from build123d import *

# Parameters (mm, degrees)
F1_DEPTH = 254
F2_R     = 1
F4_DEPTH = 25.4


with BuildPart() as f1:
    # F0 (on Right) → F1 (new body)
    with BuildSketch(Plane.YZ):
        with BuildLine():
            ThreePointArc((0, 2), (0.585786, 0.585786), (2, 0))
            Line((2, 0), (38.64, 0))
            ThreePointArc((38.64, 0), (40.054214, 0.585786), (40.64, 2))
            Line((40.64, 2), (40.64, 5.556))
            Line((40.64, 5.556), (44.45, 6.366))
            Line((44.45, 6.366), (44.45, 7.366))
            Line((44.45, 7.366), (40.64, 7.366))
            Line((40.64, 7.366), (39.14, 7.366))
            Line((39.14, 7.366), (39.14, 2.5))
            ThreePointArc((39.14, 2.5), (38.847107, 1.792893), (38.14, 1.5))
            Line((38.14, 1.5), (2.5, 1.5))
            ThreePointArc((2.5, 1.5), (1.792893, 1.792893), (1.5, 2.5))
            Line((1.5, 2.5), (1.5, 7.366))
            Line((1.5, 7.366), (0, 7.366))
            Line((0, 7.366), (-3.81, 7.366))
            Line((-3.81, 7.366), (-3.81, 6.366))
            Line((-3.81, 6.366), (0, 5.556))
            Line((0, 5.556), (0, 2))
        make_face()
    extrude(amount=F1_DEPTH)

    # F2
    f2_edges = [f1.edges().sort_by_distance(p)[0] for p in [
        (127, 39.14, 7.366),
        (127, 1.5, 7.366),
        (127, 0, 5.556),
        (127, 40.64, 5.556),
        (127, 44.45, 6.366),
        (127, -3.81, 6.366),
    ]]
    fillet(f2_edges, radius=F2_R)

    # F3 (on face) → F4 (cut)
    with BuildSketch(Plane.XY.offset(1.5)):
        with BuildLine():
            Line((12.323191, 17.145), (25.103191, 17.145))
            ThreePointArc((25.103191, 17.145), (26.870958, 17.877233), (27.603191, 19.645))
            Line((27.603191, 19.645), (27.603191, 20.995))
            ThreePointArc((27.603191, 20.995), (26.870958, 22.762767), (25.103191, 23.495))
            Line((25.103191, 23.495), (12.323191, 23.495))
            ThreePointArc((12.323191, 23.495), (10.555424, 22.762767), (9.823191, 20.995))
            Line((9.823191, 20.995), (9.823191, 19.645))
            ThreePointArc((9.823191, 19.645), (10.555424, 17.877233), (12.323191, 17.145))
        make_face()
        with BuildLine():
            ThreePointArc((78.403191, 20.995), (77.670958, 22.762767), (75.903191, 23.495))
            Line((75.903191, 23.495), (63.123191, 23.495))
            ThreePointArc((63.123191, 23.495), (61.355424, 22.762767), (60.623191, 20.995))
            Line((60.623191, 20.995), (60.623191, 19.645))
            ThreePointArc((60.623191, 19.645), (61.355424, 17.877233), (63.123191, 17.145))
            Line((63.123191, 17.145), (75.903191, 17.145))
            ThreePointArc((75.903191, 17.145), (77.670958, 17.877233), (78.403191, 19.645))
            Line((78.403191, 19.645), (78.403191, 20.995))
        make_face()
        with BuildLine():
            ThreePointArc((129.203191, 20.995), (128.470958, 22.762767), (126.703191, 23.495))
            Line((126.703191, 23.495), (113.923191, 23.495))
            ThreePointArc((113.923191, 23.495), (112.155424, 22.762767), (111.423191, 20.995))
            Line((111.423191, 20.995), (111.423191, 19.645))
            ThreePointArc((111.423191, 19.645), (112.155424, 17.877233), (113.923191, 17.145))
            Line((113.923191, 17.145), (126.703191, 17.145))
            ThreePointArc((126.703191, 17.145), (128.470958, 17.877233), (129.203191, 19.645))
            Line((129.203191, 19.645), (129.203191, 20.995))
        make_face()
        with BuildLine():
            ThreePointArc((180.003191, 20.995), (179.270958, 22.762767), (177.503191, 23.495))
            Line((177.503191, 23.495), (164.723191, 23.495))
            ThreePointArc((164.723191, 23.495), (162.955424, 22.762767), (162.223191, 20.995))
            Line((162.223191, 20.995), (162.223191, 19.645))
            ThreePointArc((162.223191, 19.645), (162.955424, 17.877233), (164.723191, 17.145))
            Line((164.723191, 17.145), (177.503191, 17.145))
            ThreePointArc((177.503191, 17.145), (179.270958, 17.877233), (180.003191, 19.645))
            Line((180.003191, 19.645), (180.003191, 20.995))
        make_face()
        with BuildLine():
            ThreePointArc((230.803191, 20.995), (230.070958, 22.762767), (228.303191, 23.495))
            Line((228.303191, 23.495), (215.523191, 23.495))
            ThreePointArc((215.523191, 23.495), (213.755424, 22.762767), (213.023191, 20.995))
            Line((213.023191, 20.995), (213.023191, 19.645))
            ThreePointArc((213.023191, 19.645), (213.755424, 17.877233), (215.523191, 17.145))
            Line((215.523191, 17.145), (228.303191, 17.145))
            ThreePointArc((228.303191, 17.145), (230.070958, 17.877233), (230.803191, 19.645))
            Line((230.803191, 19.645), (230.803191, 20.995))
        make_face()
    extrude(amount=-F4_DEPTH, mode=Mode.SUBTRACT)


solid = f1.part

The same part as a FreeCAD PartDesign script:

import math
import FreeCAD as App
import Part
import Sketcher
from FreeCAD import Vector


def edges_at(feature, points):
    """Names of the edges that pass closest to the given points."""
    edges = feature.Shape.Edges
    near = lambda p: min(range(len(edges)), key=lambda i: edges[i].distToShape(Part.Vertex(*p))[0])
    return sorted({f"Edge{near(p) + 1}" for p in points})

doc = App.newDocument("Part")
body = doc.addObject("PartDesign::Body", "Body")

# Sketch on YZ plane
sketch1 = doc.addObject("Sketcher::SketchObject", "Sketch")
body.addObject(sketch1)
sketch1.AttachmentSupport = (doc.YZ_Plane, [""])
sketch1.MapMode = "FlatFace"
sketch1.addGeometry(Part.ArcOfCircle(Part.Circle(Vector(2, 2, 0), Vector(0, 0, 1), 2), math.radians(180), math.radians(270)), False)
sketch1.addGeometry(Part.LineSegment(Vector(2, 0, 0), Vector(38.6, 0, 0)), False)
sketch1.addGeometry(Part.ArcOfCircle(Part.Circle(Vector(38.6, 2, 0), Vector(0, 0, 1), 2), math.radians(-90), math.radians(0)), False)
sketch1.addGeometry(Part.LineSegment(Vector(40.6, 2, 0), Vector(40.6, 5.6, 0)), False)
sketch1.addGeometry(Part.LineSegment(Vector(40.6, 5.6, 0), Vector(44.5, 6.4, 0)), False)
sketch1.addGeometry(Part.LineSegment(Vector(44.5, 6.4, 0), Vector(44.5, 7.4, 0)), False)
sketch1.addGeometry(Part.LineSegment(Vector(44.5, 7.4, 0), Vector(39.1, 7.4, 0)), False)
sketch1.addGeometry(Part.LineSegment(Vector(39.1, 7.4, 0), Vector(39.1, 2.5, 0)), False)
sketch1.addGeometry(Part.ArcOfCircle(Part.Circle(Vector(38.1, 2.5, 0), Vector(0, 0, 1), 1), math.radians(-90), math.radians(0)), False)
sketch1.addGeometry(Part.LineSegment(Vector(38.1, 1.5, 0), Vector(2.5, 1.5, 0)), False)
sketch1.addGeometry(Part.ArcOfCircle(Part.Circle(Vector(2.5, 2.5, 0), Vector(0, 0, 1), 1), math.radians(180), math.radians(270)), False)
sketch1.addGeometry(Part.LineSegment(Vector(1.5, 2.5, 0), Vector(1.5, 7.4, 0)), False)
sketch1.addGeometry(Part.LineSegment(Vector(1.5, 7.4, 0), Vector(-3.8, 7.4, 0)), False)
sketch1.addGeometry(Part.LineSegment(Vector(-3.8, 7.4, 0), Vector(-3.8, 6.4, 0)), False)
sketch1.addGeometry(Part.LineSegment(Vector(-3.8, 6.4, 0), Vector(0, 5.6, 0)), False)
sketch1.addGeometry(Part.LineSegment(Vector(0, 5.6, 0), Vector(0, 2, 0)), False)
sketch1.addConstraint(Sketcher.Constraint("Tangent", 0, 2, 1, 1))
sketch1.addConstraint(Sketcher.Constraint("Tangent", 1, 2, 2, 1))
sketch1.addConstraint(Sketcher.Constraint("Tangent", 2, 2, 3, 1))
sketch1.addConstraint(Sketcher.Constraint("Coincident", 3, 2, 4, 1))
sketch1.addConstraint(Sketcher.Constraint("Coincident", 4, 2, 5, 1))
sketch1.addConstraint(Sketcher.Constraint("Coincident", 5, 2, 6, 1))
sketch1.addConstraint(Sketcher.Constraint("Coincident", 6, 2, 7, 1))
sketch1.addConstraint(Sketcher.Constraint("Tangent", 7, 2, 8, 2))
sketch1.addConstraint(Sketcher.Constraint("Tangent", 8, 1, 9, 1))
sketch1.addConstraint(Sketcher.Constraint("Tangent", 9, 2, 10, 2))
sketch1.addConstraint(Sketcher.Constraint("Tangent", 10, 1, 11, 1))
sketch1.addConstraint(Sketcher.Constraint("Coincident", 11, 2, 12, 1))
sketch1.addConstraint(Sketcher.Constraint("Coincident", 12, 2, 13, 1))
sketch1.addConstraint(Sketcher.Constraint("Coincident", 13, 2, 14, 1))
sketch1.addConstraint(Sketcher.Constraint("Coincident", 14, 2, 15, 1))
sketch1.addConstraint(Sketcher.Constraint("Tangent", 15, 2, 0, 1))
sketch1.addConstraint(Sketcher.Constraint("Horizontal", 1))
sketch1.addConstraint(Sketcher.Constraint("Vertical", 3))
sketch1.addConstraint(Sketcher.Constraint("Vertical", 5))
sketch1.addConstraint(Sketcher.Constraint("Horizontal", 6))
sketch1.addConstraint(Sketcher.Constraint("Vertical", 7))
sketch1.addConstraint(Sketcher.Constraint("Horizontal", 9))
sketch1.addConstraint(Sketcher.Constraint("Vertical", 11))
sketch1.addConstraint(Sketcher.Constraint("Horizontal", 12))
sketch1.addConstraint(Sketcher.Constraint("Vertical", 13))
sketch1.addConstraint(Sketcher.Constraint("Vertical", 15))
sketch1.addConstraint(Sketcher.Constraint("Equal", 0, 2))
sketch1.addConstraint(Sketcher.Constraint("Equal", 8, 10))
sketch1.addConstraint(Sketcher.Constraint("PointOnObject", 0, 2, -1))
sketch1.addConstraint(Sketcher.Constraint("PointOnObject", 14, 2, -2))
sketch1.addConstraint(Sketcher.Constraint("Horizontal", 6, 2, 11, 2))
sketch1.addConstraint(Sketcher.Constraint("Horizontal", 4, 2, 13, 2))
sketch1.addConstraint(Sketcher.Constraint("Horizontal", 3, 2, 14, 2))
sketch1.addConstraint(Sketcher.Constraint("Equal", 6, 12))
sketch1.addConstraint(Sketcher.Constraint("Equal", 4, 14))
sketch1.addConstraint(Sketcher.Constraint("Radius", 0, 1.999999))
sketch1.addConstraint(Sketcher.Constraint("Radius", 8, 0.999999))
sketch1.addConstraint(Sketcher.Constraint("DistanceY", 5, 1, 5, 2, 1.0))
sketch1.addConstraint(Sketcher.Constraint("DistanceX", 1, 1, 1, 2, 36.64))
sketch1.addConstraint(Sketcher.Constraint("DistanceX", 6, 2, 6, 1, 5.31))
sketch1.addConstraint(Sketcher.Constraint("DistanceX", 9, 2, 9, 1, 35.64))
sketch1.addConstraint(Sketcher.Constraint("DistanceY", -1, 1, 8, 3, 2.499999))
sketch1.addConstraint(Sketcher.Constraint("DistanceY", 3, 1, 3, 2, 3.556))
sketch1.addConstraint(Sketcher.Constraint("DistanceY", 7, 2, 7, 1, 4.866))
pad1 = doc.addObject("PartDesign::Pad", "Pad")
body.addObject(pad1)
pad1.Profile = sketch1
pad1.Length = 254
doc.recompute()

fillet = doc.addObject("PartDesign::Fillet", "Fillet")
body.addObject(fillet)
fillet.Base = (pad1, edges_at(pad1, [
    (127, 39.14, 7.366),
    (127, 1.5, 7.366),
    (127, 0, 5.556),
    (127, 40.64, 5.556),
    (127, 44.45, 6.366),
    (127, -3.81, 6.366),
]))
fillet.Radius = 1

# Sketch on XY plane
sketch2 = doc.addObject("Sketcher::SketchObject", "Sketch001")
body.addObject(sketch2)
sketch2.AttachmentSupport = (doc.XY_Plane, [""])
sketch2.MapMode = "FlatFace"
sketch2.AttachmentOffset = App.Placement(Vector(0, 0, 1.5), App.Rotation())
sketch2.addGeometry(Part.LineSegment(Vector(12.3, 17.1, 0), Vector(25.1, 17.1, 0)), False)
sketch2.addGeometry(Part.ArcOfCircle(Part.Circle(Vector(25.1, 19.6, 0), Vector(0, 0, 1), 2.5), math.radians(-90), math.radians(0)), False)
sketch2.addGeometry(Part.LineSegment(Vector(27.6, 19.6, 0), Vector(27.6, 21, 0)), False)
sketch2.addGeometry(Part.ArcOfCircle(Part.Circle(Vector(25.1, 21, 0), Vector(0, 0, 1), 2.5), math.radians(0), math.radians(90)), False)
sketch2.addGeometry(Part.LineSegment(Vector(25.1, 23.5, 0), Vector(12.3, 23.5, 0)), False)
sketch2.addGeometry(Part.ArcOfCircle(Part.Circle(Vector(12.3, 21, 0), Vector(0, 0, 1), 2.5), math.radians(90), math.radians(180)), False)
sketch2.addGeometry(Part.LineSegment(Vector(9.8, 21, 0), Vector(9.8, 19.6, 0)), False)
sketch2.addGeometry(Part.ArcOfCircle(Part.Circle(Vector(12.3, 19.6, 0), Vector(0, 0, 1), 2.5), math.radians(180), math.radians(270)), False)
sketch2.addGeometry(Part.ArcOfCircle(Part.Circle(Vector(75.9, 21, 0), Vector(0, 0, 1), 2.5), math.radians(0), math.radians(90)), False)
sketch2.addGeometry(Part.LineSegment(Vector(75.9, 23.5, 0), Vector(63.1, 23.5, 0)), False)
sketch2.addGeometry(Part.ArcOfCircle(Part.Circle(Vector(63.1, 21, 0), Vector(0, 0, 1), 2.5), math.radians(90), math.radians(180)), False)
sketch2.addGeometry(Part.LineSegment(Vector(60.6, 21, 0), Vector(60.6, 19.6, 0)), False)
sketch2.addGeometry(Part.ArcOfCircle(Part.Circle(Vector(63.1, 19.6, 0), Vector(0, 0, 1), 2.5), math.radians(180), math.radians(270)), False)
sketch2.addGeometry(Part.LineSegment(Vector(63.1, 17.1, 0), Vector(75.9, 17.1, 0)), False)
sketch2.addGeometry(Part.ArcOfCircle(Part.Circle(Vector(75.9, 19.6, 0), Vector(0, 0, 1), 2.5), math.radians(-90), math.radians(0)), False)
sketch2.addGeometry(Part.LineSegment(Vector(78.4, 19.6, 0), Vector(78.4, 21, 0)), False)
sketch2.addGeometry(Part.ArcOfCircle(Part.Circle(Vector(126.7, 21, 0), Vector(0, 0, 1), 2.5), math.radians(0), math.radians(90)), False)
sketch2.addGeometry(Part.LineSegment(Vector(126.7, 23.5, 0), Vector(113.9, 23.5, 0)), False)
sketch2.addGeometry(Part.ArcOfCircle(Part.Circle(Vector(113.9, 21, 0), Vector(0, 0, 1), 2.5), math.radians(90), math.radians(180)), False)
sketch2.addGeometry(Part.LineSegment(Vector(111.4, 21, 0), Vector(111.4, 19.6, 0)), False)
sketch2.addGeometry(Part.ArcOfCircle(Part.Circle(Vector(113.9, 19.6, 0), Vector(0, 0, 1), 2.5), math.radians(180), math.radians(270)), False)
sketch2.addGeometry(Part.LineSegment(Vector(113.9, 17.1, 0), Vector(126.7, 17.1, 0)), False)
sketch2.addGeometry(Part.ArcOfCircle(Part.Circle(Vector(126.7, 19.6, 0), Vector(0, 0, 1), 2.5), math.radians(-90), math.radians(0)), False)
sketch2.addGeometry(Part.LineSegment(Vector(129.2, 19.6, 0), Vector(129.2, 21, 0)), False)
sketch2.addGeometry(Part.ArcOfCircle(Part.Circle(Vector(177.5, 21, 0), Vector(0, 0, 1), 2.5), math.radians(0), math.radians(90)), False)
sketch2.addGeometry(Part.LineSegment(Vector(177.5, 23.5, 0), Vector(164.7, 23.5, 0)), False)
sketch2.addGeometry(Part.ArcOfCircle(Part.Circle(Vector(164.7, 21, 0), Vector(0, 0, 1), 2.5), math.radians(90), math.radians(180)), False)
sketch2.addGeometry(Part.LineSegment(Vector(162.2, 21, 0), Vector(162.2, 19.6, 0)), False)
sketch2.addGeometry(Part.ArcOfCircle(Part.Circle(Vector(164.7, 19.6, 0), Vector(0, 0, 1), 2.5), math.radians(180), math.radians(270)), False)
sketch2.addGeometry(Part.LineSegment(Vector(164.7, 17.1, 0), Vector(177.5, 17.1, 0)), False)
sketch2.addGeometry(Part.ArcOfCircle(Part.Circle(Vector(177.5, 19.6, 0), Vector(0, 0, 1), 2.5), math.radians(-90), math.radians(0)), False)
sketch2.addGeometry(Part.LineSegment(Vector(180, 19.6, 0), Vector(180, 21, 0)), False)
sketch2.addGeometry(Part.ArcOfCircle(Part.Circle(Vector(228.3, 21, 0), Vector(0, 0, 1), 2.5), math.radians(0), math.radians(90)), False)
sketch2.addGeometry(Part.LineSegment(Vector(228.3, 23.5, 0), Vector(215.5, 23.5, 0)), False)
sketch2.addGeometry(Part.ArcOfCircle(Part.Circle(Vector(215.5, 21, 0), Vector(0, 0, 1), 2.5), math.radians(90), math.radians(180)), False)
sketch2.addGeometry(Part.LineSegment(Vector(213, 21, 0), Vector(213, 19.6, 0)), False)
sketch2.addGeometry(Part.ArcOfCircle(Part.Circle(Vector(215.5, 19.6, 0), Vector(0, 0, 1), 2.5), math.radians(180), math.radians(270)), False)
sketch2.addGeometry(Part.LineSegment(Vector(215.5, 17.1, 0), Vector(228.3, 17.1, 0)), False)
sketch2.addGeometry(Part.ArcOfCircle(Part.Circle(Vector(228.3, 19.6, 0), Vector(0, 0, 1), 2.5), math.radians(-90), math.radians(0)), False)
sketch2.addGeometry(Part.LineSegment(Vector(230.8, 19.6, 0), Vector(230.8, 21, 0)), False)
sketch2.addConstraint(Sketcher.Constraint("Tangent", 0, 2, 1, 1))
sketch2.addConstraint(Sketcher.Constraint("Tangent", 1, 2, 2, 1))
sketch2.addConstraint(Sketcher.Constraint("Tangent", 2, 2, 3, 1))
sketch2.addConstraint(Sketcher.Constraint("Tangent", 3, 2, 4, 1))
sketch2.addConstraint(Sketcher.Constraint("Tangent", 4, 2, 5, 1))
sketch2.addConstraint(Sketcher.Constraint("Tangent", 5, 2, 6, 1))
sketch2.addConstraint(Sketcher.Constraint("Tangent", 6, 2, 7, 1))
sketch2.addConstraint(Sketcher.Constraint("Tangent", 7, 2, 0, 1))
sketch2.addConstraint(Sketcher.Constraint("Tangent", 8, 2, 9, 1))
sketch2.addConstraint(Sketcher.Constraint("Tangent", 9, 2, 10, 1))
sketch2.addConstraint(Sketcher.Constraint("Tangent", 10, 2, 11, 1))
sketch2.addConstraint(Sketcher.Constraint("Tangent", 11, 2, 12, 1))
sketch2.addConstraint(Sketcher.Constraint("Tangent", 12, 2, 13, 1))
sketch2.addConstraint(Sketcher.Constraint("Tangent", 13, 2, 14, 1))
sketch2.addConstraint(Sketcher.Constraint("Tangent", 14, 2, 15, 1))
sketch2.addConstraint(Sketcher.Constraint("Tangent", 15, 2, 8, 1))
sketch2.addConstraint(Sketcher.Constraint("Tangent", 16, 2, 17, 1))
sketch2.addConstraint(Sketcher.Constraint("Tangent", 17, 2, 18, 1))
sketch2.addConstraint(Sketcher.Constraint("Tangent", 18, 2, 19, 1))
sketch2.addConstraint(Sketcher.Constraint("Tangent", 19, 2, 20, 1))
sketch2.addConstraint(Sketcher.Constraint("Tangent", 20, 2, 21, 1))
sketch2.addConstraint(Sketcher.Constraint("Tangent", 21, 2, 22, 1))
sketch2.addConstraint(Sketcher.Constraint("Tangent", 22, 2, 23, 1))
sketch2.addConstraint(Sketcher.Constraint("Tangent", 23, 2, 16, 1))
sketch2.addConstraint(Sketcher.Constraint("Tangent", 24, 2, 25, 1))
sketch2.addConstraint(Sketcher.Constraint("Tangent", 25, 2, 26, 1))
sketch2.addConstraint(Sketcher.Constraint("Tangent", 26, 2, 27, 1))
sketch2.addConstraint(Sketcher.Constraint("Tangent", 27, 2, 28, 1))
sketch2.addConstraint(Sketcher.Constraint("Tangent", 28, 2, 29, 1))
sketch2.addConstraint(Sketcher.Constraint("Tangent", 29, 2, 30, 1))
sketch2.addConstraint(Sketcher.Constraint("Tangent", 30, 2, 31, 1))
sketch2.addConstraint(Sketcher.Constraint("Tangent", 31, 2, 24, 1))
sketch2.addConstraint(Sketcher.Constraint("Tangent", 32, 2, 33, 1))
sketch2.addConstraint(Sketcher.Constraint("Tangent", 33, 2, 34, 1))
sketch2.addConstraint(Sketcher.Constraint("Tangent", 34, 2, 35, 1))
sketch2.addConstraint(Sketcher.Constraint("Tangent", 35, 2, 36, 1))
sketch2.addConstraint(Sketcher.Constraint("Tangent", 36, 2, 37, 1))
sketch2.addConstraint(Sketcher.Constraint("Tangent", 37, 2, 38, 1))
sketch2.addConstraint(Sketcher.Constraint("Tangent", 38, 2, 39, 1))
sketch2.addConstraint(Sketcher.Constraint("Tangent", 39, 2, 32, 1))
sketch2.addConstraint(Sketcher.Constraint("Horizontal", 0))
sketch2.addConstraint(Sketcher.Constraint("Vertical", 2))
sketch2.addConstraint(Sketcher.Constraint("Horizontal", 4))
sketch2.addConstraint(Sketcher.Constraint("Vertical", 6))
sketch2.addConstraint(Sketcher.Constraint("Horizontal", 9))
sketch2.addConstraint(Sketcher.Constraint("Vertical", 11))
sketch2.addConstraint(Sketcher.Constraint("Horizontal", 13))
sketch2.addConstraint(Sketcher.Constraint("Vertical", 15))
sketch2.addConstraint(Sketcher.Constraint("Horizontal", 17))
sketch2.addConstraint(Sketcher.Constraint("Vertical", 19))
sketch2.addConstraint(Sketcher.Constraint("Horizontal", 21))
sketch2.addConstraint(Sketcher.Constraint("Vertical", 23))
sketch2.addConstraint(Sketcher.Constraint("Horizontal", 25))
sketch2.addConstraint(Sketcher.Constraint("Vertical", 27))
sketch2.addConstraint(Sketcher.Constraint("Horizontal", 29))
sketch2.addConstraint(Sketcher.Constraint("Vertical", 31))
sketch2.addConstraint(Sketcher.Constraint("Horizontal", 33))
sketch2.addConstraint(Sketcher.Constraint("Vertical", 35))
sketch2.addConstraint(Sketcher.Constraint("Horizontal", 37))
sketch2.addConstraint(Sketcher.Constraint("Vertical", 39))
sketch2.addConstraint(Sketcher.Constraint("Equal", 1, 3))
sketch2.addConstraint(Sketcher.Constraint("Equal", 3, 5))
sketch2.addConstraint(Sketcher.Constraint("Equal", 5, 7))
sketch2.addConstraint(Sketcher.Constraint("Equal", 7, 8))
sketch2.addConstraint(Sketcher.Constraint("Equal", 8, 10))
sketch2.addConstraint(Sketcher.Constraint("Equal", 10, 12))
sketch2.addConstraint(Sketcher.Constraint("Equal", 12, 14))
sketch2.addConstraint(Sketcher.Constraint("Equal", 14, 16))
sketch2.addConstraint(Sketcher.Constraint("Equal", 16, 18))
sketch2.addConstraint(Sketcher.Constraint("Equal", 18, 20))
sketch2.addConstraint(Sketcher.Constraint("Equal", 20, 22))
sketch2.addConstraint(Sketcher.Constraint("Equal", 22, 24))
sketch2.addConstraint(Sketcher.Constraint("Equal", 24, 26))
sketch2.addConstraint(Sketcher.Constraint("Equal", 26, 28))
sketch2.addConstraint(Sketcher.Constraint("Equal", 28, 30))
sketch2.addConstraint(Sketcher.Constraint("Equal", 30, 32))
sketch2.addConstraint(Sketcher.Constraint("Equal", 32, 34))
sketch2.addConstraint(Sketcher.Constraint("Equal", 34, 36))
sketch2.addConstraint(Sketcher.Constraint("Equal", 36, 38))
sketch2.addConstraint(Sketcher.Constraint("Horizontal", 5, 3, 8, 3))
sketch2.addConstraint(Sketcher.Constraint("Horizontal", 7, 3, 12, 3))
sketch2.addConstraint(Sketcher.Constraint("Horizontal", 10, 3, 16, 3))
sketch2.addConstraint(Sketcher.Constraint("Horizontal", 14, 3, 20, 3))
sketch2.addConstraint(Sketcher.Constraint("Horizontal", 18, 3, 24, 3))
sketch2.addConstraint(Sketcher.Constraint("Horizontal", 22, 3, 28, 3))
sketch2.addConstraint(Sketcher.Constraint("Horizontal", 26, 3, 32, 3))
sketch2.addConstraint(Sketcher.Constraint("Horizontal", 30, 3, 36, 3))
sketch2.addConstraint(Sketcher.Constraint("Equal", 4, 9))
sketch2.addConstraint(Sketcher.Constraint("Equal", 13, 17))
sketch2.addConstraint(Sketcher.Constraint("Equal", 21, 25))
sketch2.addConstraint(Sketcher.Constraint("Equal", 29, 33))
sketch2.addConstraint(Sketcher.Constraint("Radius", 1, 2.5))
sketch2.addConstraint(Sketcher.Constraint("DistanceX", 0, 1, 0, 2, 12.78))
sketch2.addConstraint(Sketcher.Constraint("DistanceY", 2, 1, 2, 2, 1.35))
sketch2.addConstraint(Sketcher.Constraint("DistanceX", 3, 3, 8, 3, 50.8))
sketch2.addConstraint(Sketcher.Constraint("DistanceX", 8, 3, 16, 3, 50.8))
sketch2.addConstraint(Sketcher.Constraint("DistanceX", 16, 3, 24, 3, 50.8))
sketch2.addConstraint(Sketcher.Constraint("DistanceX", 24, 3, 32, 3, 50.8))
sketch2.addConstraint(Sketcher.Constraint("DistanceY", -1, 1, 1, 3, 19.645))
sketch2.addConstraint(Sketcher.Constraint("DistanceX", -1, 1, 1, 3, 25.103191))
pocket1 = doc.addObject("PartDesign::Pocket", "Pocket")
body.addObject(pocket1)
pocket1.Profile = sketch2
pocket1.Length = 25.4

doc.recompute()
